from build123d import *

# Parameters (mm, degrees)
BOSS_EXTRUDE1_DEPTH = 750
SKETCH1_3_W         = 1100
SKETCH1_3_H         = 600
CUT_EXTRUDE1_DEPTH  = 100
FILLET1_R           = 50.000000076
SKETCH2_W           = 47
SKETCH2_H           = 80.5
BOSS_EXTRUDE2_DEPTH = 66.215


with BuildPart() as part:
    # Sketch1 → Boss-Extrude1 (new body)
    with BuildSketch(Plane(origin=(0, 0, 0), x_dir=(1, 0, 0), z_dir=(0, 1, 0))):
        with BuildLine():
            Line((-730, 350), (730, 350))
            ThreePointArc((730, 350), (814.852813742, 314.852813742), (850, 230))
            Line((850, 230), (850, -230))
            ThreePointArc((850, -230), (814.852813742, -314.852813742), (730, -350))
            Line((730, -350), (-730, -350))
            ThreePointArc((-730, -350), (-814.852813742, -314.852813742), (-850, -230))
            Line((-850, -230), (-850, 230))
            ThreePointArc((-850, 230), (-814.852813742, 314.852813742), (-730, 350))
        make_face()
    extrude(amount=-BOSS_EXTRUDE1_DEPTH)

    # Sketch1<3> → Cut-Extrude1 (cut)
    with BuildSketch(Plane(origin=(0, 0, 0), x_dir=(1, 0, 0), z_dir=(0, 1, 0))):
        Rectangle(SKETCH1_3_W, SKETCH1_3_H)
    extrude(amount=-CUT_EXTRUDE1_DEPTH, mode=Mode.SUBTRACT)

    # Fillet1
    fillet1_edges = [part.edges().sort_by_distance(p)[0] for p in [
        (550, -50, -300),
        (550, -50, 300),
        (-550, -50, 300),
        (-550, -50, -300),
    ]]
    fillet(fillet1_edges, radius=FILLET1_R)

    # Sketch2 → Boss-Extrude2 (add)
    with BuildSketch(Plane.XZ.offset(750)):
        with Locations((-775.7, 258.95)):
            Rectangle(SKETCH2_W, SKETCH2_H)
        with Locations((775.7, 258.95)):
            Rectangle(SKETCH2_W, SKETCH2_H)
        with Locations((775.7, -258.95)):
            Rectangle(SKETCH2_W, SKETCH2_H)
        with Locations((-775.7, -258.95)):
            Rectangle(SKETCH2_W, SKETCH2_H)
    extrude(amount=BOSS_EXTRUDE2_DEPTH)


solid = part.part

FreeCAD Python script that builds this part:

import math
import FreeCAD as App
import Part
import Sketcher


def edges_at(feature, points):
    """Names of the edges that pass closest to the given points."""
    edges = feature.Shape.Edges
    near = lambda p: min(range(len(edges)), key=lambda i: edges[i].distToShape(Part.Vertex(*p))[0])
    return sorted({f"Edge{near(p) + 1}" for p in points})


def add_polygon(sketch, points):
    """Adds a closed chain of lines whose ends are joined by coincident constraints."""
    first, n = sketch.GeometryCount, len(points)
    for a, b in zip(points, points[1:] + points[:1]):
        sketch.addGeometry(Part.LineSegment(App.Vector(*a, 0), App.Vector(*b, 0)), False)
    for i in range(n):
        sketch.addConstraint(Sketcher.Constraint("Coincident", first + i, 2, first + (i + 1) % n, 1))

doc = App.newDocument("Part")
body = doc.addObject("PartDesign::Body", "Body")

# Sketch on XZ plane
sketch1 = doc.addObject("Sketcher::SketchObject", "Sketch")
body.addObject(sketch1)
sketch1.AttachmentSupport = (doc.XZ_Plane, [""])
sketch1.MapMode = "FlatFace"
sketch1.addGeometry([
    Part.LineSegment(App.Vector(730, -350, 0), App.Vector(-730, -350, 0)),  # 0
    Part.ArcOfCircle(Part.Circle(App.Vector(-730, -230, 0), App.Vector(0, 0, 1), 120), math.radians(-180), math.radians(-90)),  # 1
    Part.LineSegment(App.Vector(-850, -230, 0), App.Vector(-850, 230, 0)),  # 2
    Part.ArcOfCircle(Part.Circle(App.Vector(-730, 230, 0), App.Vector(0, 0, 1), 120), math.radians(90), math.radians(180)),  # 3
    Part.LineSegment(App.Vector(-730, 350, 0), App.Vector(730, 350, 0)),  # 4
    Part.ArcOfCircle(Part.Circle(App.Vector(730, 230, 0), App.Vector(0, 0, 1), 120), math.radians(0), math.radians(90)),  # 5
    Part.LineSegment(App.Vector(850, 230, 0), App.Vector(850, -230, 0)),  # 6
    Part.ArcOfCircle(Part.Circle(App.Vector(730, -230, 0), App.Vector(0, 0, 1), 120), math.radians(-90), math.radians(0)),  # 7
], False)
sketch1.addConstraint([
    Sketcher.Constraint("Tangent", 0, 2, 1, 2),
    Sketcher.Constraint("Tangent", 1, 1, 2, 1),
    Sketcher.Constraint("Tangent", 2, 2, 3, 2),
    Sketcher.Constraint("Tangent", 3, 1, 4, 1),
    Sketcher.Constraint("Tangent", 4, 2, 5, 2),
    Sketcher.Constraint("Tangent", 5, 1, 6, 1),
    Sketcher.Constraint("Tangent", 6, 2, 7, 2),
    Sketcher.Constraint("Tangent", 7, 1, 0, 1),
    Sketcher.Constraint("Horizontal", 0),
    Sketcher.Constraint("Vertical", 2),
    Sketcher.Constraint("Horizontal", 4),
    Sketcher.Constraint("Vertical", 6),
    Sketcher.Constraint("Equal", 1, 3),
    Sketcher.Constraint("Equal", 3, 5),
    Sketcher.Constraint("Equal", 5, 7),
    Sketcher.Constraint("Symmetric", 1, 3, 5, 3, -1, 1),
    Sketcher.Constraint("Radius", 1, 120.0),
    Sketcher.Constraint("DistanceX", 0, 2, 0, 1, 1460.0),
    Sketcher.Constraint("DistanceY", 2, 1, 2, 2, 460.0),
])
pad1 = doc.addObject("PartDesign::Pad", "Pad")
body.addObject(pad1)
pad1.Profile = sketch1
pad1.Length = 750

# Sketch on XZ plane
sketch2 = doc.addObject("Sketcher::SketchObject", "Sketch001")
body.addObject(sketch2)
sketch2.AttachmentSupport = (doc.XZ_Plane, [""])
sketch2.MapMode = "FlatFace"
add_polygon(sketch2, [(-550, -300), (-550, 300), (550, 300), (550, -300)])  # lines 0-3
sketch2.addConstraint([
    Sketcher.Constraint("Vertical", 0),
    Sketcher.Constraint("Horizontal", 1),
    Sketcher.Constraint("Vertical", 2),
    Sketcher.Constraint("Horizontal", 3),
    Sketcher.Constraint("Symmetric", 0, 2, 2, 2, -1, 1),
    Sketcher.Constraint("DistanceX", 1, 1, 1, 2, 1100.0),
    Sketcher.Constraint("DistanceY", 0, 1, 0, 2, 600.0),
])
pocket1 = doc.addObject("PartDesign::Pocket", "Pocket")
body.addObject(pocket1)
pocket1.Profile = sketch2
pocket1.Length = 100
pocket1.Reversed = True
doc.recompute()

fillet = doc.addObject("PartDesign::Fillet", "Fillet")
body.addObject(fillet)
fillet.Base = (pocket1, edges_at(pocket1, [
    (550, -50, -300),
    (550, -50, 300),
    (-550, -50, 300),
    (-550, -50, -300),
]))
fillet.Radius = 50

# Sketch on XZ plane
sketch3 = doc.addObject("Sketcher::SketchObject", "Sketch002")
body.addObject(sketch3)
sketch3.AttachmentSupport = (doc.XZ_Plane, [""])
sketch3.MapMode = "FlatFace"
sketch3.AttachmentOffset = App.Placement(App.Vector(0, 0, 750), App.Rotation())
add_polygon(sketch3, [(-799, 299), (-799, 219), (-752, 219), (-752, 299)])  # lines 0-3
add_polygon(sketch3, [(752, 299), (752, 219), (799, 219), (799, 299)])  # lines 4-7
add_polygon(sketch3, [(752, -219), (752, -299), (799, -299), (799, -219)])  # lines 8-11
add_polygon(sketch3, [(-799, -219), (-799, -299), (-752, -299), (-752, -219)])  # lines 12-15
sketch3.addConstraint([
    Sketcher.Constraint("Vertical", 0),
    Sketcher.Constraint("Horizontal", 1),
    Sketcher.Constraint("Vertical", 2),
    Sketcher.Constraint("Horizontal", 3),
    Sketcher.Constraint("Vertical", 4),
    Sketcher.Constraint("Horizontal", 5),
    Sketcher.Constraint("Vertical", 6),
    Sketcher.Constraint("Horizontal", 7),
    Sketcher.Constraint("Vertical", 8),
    Sketcher.Constraint("Horizontal", 9),
    Sketcher.Constraint("Vertical", 10),
    Sketcher.Constraint("Horizontal", 11),
    Sketcher.Constraint("Vertical", 12),
    Sketcher.Constraint("Horizontal", 13),
    Sketcher.Constraint("Vertical", 14),
    Sketcher.Constraint("Horizontal", 15),
    Sketcher.Constraint("Symmetric", 2, 2, 8, 2, -1, 1),
    Sketcher.Constraint("Symmetric", 0, 2, 10, 2, -1, 1),
    Sketcher.Constraint("Symmetric", 6, 2, 12, 2, -1, 1),
    Sketcher.Constraint("Symmetric", 4, 2, 14, 2, -1, 1),
    Sketcher.Constraint("Symmetric", 1, 2, 4, 2, -2),
    Sketcher.Constraint("Symmetric", 3, 2, 6, 2, -2),
    Sketcher.Constraint("DistanceX", 1, 1, 1, 2, 47.0),
    Sketcher.Constraint("DistanceY", 0, 2, 0, 1, 80.5),
    Sketcher.Constraint("DistanceX", 0, 2, -1, 1, 799.2),
    Sketcher.Constraint("DistanceY", -1, 1, 0, 2, 218.7),
])
pad2 = doc.addObject("PartDesign::Pad", "Pad001")
body.addObject(pad2)
pad2.Profile = sketch3
pad2.Length = 66.215

doc.recompute()
